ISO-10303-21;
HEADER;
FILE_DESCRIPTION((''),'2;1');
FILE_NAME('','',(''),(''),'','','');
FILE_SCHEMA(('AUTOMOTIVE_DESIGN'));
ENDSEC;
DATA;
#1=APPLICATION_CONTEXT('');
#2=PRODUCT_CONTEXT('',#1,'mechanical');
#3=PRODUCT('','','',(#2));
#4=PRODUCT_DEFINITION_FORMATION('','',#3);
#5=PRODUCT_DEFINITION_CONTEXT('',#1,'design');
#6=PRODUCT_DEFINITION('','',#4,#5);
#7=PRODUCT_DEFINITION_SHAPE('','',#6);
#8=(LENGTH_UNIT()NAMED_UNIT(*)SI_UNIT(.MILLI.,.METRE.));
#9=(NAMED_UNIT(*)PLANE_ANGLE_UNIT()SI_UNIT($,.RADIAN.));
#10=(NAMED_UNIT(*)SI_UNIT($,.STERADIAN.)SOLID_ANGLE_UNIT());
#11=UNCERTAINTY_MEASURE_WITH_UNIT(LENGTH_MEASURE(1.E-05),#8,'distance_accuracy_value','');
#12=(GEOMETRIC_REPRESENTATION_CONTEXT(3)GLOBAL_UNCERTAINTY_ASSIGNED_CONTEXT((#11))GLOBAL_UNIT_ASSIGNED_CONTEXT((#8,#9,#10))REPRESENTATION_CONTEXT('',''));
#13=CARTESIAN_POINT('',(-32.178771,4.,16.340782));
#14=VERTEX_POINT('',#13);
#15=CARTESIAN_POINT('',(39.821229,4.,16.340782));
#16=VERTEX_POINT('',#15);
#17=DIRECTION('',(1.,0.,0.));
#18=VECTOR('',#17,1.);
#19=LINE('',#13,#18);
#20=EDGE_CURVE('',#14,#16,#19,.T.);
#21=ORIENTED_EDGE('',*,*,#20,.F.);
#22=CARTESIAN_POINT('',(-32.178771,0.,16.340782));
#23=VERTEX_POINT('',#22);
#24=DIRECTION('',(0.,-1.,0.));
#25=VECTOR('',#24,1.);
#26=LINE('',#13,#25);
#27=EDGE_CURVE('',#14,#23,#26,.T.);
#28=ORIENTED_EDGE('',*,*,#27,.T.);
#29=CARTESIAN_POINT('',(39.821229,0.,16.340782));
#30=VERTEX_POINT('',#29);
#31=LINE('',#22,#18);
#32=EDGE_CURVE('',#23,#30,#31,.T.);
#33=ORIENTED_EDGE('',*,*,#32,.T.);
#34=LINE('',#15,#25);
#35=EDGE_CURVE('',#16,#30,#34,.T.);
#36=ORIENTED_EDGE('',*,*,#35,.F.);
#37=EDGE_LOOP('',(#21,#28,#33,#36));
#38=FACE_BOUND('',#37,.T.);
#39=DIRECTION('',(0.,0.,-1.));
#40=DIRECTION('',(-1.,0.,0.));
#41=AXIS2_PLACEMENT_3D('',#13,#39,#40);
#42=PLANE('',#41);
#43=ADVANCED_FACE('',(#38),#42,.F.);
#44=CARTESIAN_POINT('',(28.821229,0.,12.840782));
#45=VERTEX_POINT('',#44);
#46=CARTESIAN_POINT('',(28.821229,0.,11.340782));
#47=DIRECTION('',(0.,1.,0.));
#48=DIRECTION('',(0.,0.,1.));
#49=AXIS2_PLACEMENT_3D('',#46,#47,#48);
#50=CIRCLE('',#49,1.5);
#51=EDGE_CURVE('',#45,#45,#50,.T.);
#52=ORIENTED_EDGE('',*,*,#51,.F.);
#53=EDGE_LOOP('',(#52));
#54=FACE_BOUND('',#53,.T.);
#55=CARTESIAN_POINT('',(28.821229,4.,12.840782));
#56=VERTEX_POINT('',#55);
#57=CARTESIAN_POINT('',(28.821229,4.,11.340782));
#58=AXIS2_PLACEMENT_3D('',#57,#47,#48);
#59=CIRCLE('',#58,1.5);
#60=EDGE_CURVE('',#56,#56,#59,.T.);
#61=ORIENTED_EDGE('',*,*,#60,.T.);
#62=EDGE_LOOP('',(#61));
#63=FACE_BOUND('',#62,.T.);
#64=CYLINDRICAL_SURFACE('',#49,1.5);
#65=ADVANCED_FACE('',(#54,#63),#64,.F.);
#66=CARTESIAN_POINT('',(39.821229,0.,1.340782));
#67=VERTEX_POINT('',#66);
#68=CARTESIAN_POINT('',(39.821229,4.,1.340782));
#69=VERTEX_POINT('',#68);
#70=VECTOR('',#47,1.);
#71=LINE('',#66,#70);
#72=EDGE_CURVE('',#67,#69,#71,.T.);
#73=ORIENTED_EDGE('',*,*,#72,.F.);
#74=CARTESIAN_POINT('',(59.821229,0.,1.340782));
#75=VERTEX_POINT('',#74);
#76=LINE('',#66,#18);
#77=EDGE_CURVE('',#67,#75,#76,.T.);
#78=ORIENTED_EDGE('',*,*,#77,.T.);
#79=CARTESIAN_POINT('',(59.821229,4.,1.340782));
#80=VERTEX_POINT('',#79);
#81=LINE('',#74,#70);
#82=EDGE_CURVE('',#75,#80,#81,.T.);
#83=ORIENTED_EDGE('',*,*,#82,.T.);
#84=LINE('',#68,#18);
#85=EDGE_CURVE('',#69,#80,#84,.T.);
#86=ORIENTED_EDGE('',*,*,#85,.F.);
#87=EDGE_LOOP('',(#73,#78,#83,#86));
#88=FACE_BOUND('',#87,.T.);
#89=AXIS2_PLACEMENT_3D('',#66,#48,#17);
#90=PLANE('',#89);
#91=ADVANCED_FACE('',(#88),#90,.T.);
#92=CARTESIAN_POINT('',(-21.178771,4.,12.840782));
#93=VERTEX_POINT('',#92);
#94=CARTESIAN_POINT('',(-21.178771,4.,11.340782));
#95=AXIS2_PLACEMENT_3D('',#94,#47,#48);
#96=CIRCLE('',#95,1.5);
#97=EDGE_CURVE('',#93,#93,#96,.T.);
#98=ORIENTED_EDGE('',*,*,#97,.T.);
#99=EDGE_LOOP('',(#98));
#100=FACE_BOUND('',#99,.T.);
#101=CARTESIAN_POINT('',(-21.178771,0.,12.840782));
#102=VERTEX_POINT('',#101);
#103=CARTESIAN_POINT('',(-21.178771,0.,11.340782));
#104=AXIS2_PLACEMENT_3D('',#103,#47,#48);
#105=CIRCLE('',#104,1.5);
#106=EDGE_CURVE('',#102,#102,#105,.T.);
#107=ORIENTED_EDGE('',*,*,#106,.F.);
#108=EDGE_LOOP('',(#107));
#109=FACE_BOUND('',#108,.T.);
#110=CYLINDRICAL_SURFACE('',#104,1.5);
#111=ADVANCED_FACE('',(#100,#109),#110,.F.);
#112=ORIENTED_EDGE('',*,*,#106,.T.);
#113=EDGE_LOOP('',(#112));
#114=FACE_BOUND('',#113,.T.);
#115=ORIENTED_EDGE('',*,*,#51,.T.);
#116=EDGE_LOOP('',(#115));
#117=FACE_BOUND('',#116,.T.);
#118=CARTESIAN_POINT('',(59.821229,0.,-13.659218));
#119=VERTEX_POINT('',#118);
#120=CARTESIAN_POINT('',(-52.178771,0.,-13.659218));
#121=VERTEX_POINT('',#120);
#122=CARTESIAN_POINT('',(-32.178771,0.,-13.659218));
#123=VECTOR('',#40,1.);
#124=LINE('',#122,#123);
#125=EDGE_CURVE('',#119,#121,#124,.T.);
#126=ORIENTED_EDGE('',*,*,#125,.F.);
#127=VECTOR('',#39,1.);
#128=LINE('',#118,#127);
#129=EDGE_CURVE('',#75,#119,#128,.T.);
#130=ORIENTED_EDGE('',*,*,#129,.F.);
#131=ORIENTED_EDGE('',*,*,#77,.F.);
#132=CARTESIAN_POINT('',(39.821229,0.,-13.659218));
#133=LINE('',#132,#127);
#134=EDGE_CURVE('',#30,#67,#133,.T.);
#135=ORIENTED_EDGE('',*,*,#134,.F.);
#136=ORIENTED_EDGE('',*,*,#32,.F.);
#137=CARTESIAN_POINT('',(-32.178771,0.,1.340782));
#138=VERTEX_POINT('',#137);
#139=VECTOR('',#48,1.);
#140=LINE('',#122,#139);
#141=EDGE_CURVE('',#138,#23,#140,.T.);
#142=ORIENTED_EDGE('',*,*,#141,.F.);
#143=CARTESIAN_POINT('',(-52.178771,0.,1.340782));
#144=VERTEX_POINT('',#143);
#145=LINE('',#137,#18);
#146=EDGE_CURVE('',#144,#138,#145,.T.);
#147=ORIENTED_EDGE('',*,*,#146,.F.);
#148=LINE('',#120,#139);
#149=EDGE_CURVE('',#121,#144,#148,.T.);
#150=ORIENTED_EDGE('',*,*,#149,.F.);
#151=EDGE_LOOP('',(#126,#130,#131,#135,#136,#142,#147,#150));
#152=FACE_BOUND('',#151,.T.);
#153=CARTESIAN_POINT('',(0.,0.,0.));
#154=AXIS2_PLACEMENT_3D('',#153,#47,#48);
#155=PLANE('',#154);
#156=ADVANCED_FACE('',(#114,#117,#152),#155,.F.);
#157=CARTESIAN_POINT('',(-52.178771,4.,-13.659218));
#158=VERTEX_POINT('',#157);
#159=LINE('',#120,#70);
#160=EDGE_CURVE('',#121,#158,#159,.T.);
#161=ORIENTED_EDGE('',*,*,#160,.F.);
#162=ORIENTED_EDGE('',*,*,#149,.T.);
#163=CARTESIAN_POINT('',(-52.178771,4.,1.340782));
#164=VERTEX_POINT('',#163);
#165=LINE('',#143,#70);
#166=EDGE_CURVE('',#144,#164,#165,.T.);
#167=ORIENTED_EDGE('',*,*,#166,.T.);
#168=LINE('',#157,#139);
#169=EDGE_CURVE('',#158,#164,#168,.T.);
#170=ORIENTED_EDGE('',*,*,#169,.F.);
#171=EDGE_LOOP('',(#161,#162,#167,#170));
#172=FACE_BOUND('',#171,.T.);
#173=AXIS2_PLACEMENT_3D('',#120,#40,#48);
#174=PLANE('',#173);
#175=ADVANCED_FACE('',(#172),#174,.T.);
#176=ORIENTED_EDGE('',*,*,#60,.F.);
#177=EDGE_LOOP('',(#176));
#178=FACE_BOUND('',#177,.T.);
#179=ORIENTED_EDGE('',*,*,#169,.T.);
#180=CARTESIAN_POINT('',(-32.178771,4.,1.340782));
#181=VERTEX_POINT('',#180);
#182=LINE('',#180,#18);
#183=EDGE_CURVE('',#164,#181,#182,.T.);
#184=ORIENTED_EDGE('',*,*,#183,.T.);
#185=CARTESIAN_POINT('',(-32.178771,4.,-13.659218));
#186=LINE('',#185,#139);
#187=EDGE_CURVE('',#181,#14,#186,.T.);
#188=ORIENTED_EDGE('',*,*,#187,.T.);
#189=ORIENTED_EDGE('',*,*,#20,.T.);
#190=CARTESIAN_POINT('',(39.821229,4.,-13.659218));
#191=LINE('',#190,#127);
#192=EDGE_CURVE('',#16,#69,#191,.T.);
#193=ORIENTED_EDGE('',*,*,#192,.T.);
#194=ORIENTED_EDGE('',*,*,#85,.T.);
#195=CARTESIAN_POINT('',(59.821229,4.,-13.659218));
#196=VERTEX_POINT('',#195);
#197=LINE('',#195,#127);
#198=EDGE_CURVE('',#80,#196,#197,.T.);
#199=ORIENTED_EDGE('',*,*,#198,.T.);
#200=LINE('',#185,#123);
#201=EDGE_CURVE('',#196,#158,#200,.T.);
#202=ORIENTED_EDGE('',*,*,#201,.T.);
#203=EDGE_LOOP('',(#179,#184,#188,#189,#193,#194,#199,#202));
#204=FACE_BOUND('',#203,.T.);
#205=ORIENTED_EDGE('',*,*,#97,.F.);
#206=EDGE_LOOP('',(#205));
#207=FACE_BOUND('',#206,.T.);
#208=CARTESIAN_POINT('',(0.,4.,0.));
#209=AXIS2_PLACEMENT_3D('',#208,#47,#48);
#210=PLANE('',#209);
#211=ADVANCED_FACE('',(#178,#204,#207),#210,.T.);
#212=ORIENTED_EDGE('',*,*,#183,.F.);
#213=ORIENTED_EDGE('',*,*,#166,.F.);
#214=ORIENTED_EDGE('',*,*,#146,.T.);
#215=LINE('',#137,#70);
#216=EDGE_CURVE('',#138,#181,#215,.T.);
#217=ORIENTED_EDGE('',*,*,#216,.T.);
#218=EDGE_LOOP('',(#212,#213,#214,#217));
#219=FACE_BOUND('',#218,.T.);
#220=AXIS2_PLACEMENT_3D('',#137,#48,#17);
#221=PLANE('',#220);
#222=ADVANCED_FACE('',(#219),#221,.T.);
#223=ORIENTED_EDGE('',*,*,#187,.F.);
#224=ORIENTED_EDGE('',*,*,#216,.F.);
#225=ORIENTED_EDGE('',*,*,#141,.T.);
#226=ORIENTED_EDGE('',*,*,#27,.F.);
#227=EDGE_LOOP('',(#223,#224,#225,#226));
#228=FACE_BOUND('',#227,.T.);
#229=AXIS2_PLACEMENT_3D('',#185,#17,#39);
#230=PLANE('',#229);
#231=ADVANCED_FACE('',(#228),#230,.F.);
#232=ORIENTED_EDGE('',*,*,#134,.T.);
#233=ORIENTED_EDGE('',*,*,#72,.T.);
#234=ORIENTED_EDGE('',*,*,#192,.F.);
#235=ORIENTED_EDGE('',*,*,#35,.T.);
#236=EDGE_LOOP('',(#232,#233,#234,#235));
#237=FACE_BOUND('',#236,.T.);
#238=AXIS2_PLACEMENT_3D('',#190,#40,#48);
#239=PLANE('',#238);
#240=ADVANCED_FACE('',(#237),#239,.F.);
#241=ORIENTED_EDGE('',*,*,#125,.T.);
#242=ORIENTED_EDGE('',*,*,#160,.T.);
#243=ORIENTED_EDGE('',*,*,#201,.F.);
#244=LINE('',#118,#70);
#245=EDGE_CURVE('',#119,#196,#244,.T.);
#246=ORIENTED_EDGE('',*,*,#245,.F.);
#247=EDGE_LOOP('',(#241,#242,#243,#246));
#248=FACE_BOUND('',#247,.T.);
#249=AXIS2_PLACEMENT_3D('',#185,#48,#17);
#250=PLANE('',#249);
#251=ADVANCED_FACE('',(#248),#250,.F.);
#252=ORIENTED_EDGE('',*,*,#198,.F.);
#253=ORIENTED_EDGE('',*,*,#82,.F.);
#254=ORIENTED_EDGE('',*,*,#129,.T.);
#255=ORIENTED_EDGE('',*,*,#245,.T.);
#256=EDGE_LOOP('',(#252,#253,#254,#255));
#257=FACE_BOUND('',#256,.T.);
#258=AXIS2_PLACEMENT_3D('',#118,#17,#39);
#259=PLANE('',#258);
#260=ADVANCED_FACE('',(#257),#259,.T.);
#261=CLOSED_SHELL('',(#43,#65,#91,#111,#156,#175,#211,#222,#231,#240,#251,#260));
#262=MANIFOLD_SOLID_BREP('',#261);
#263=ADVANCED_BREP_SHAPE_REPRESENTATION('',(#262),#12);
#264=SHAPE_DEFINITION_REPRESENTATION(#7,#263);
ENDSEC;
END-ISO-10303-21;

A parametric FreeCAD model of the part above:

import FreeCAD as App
import Part
import Sketcher

V = App.Vector

doc = App.newDocument("Part")
body = doc.addObject("PartDesign::Body", "Body")

sketch1 = body.newObject("Sketcher::SketchObject", "Sketch")
sketch1.AttachmentSupport = (doc.getObject("XZ_Plane"), [""])
sketch1.MapMode = "FlatFace"
sketch1.addGeometry(Part.LineSegment(V(-32, -14, 0), V(-32, 16, 0)), False)
sketch1.addGeometry(Part.LineSegment(V(-32, 16, 0), V(40, 16, 0)), False)
sketch1.addGeometry(Part.LineSegment(V(40, 16, 0), V(40, -14, 0)), False)
sketch1.addGeometry(Part.LineSegment(V(40, -14, 0), V(-32, -14, 0)), False)
sketch1.addConstraint(Sketcher.Constraint("Coincident", 0, 2, 1, 1))
sketch1.addConstraint(Sketcher.Constraint("Coincident", 1, 2, 2, 1))
sketch1.addConstraint(Sketcher.Constraint("Coincident", 2, 2, 3, 1))
sketch1.addConstraint(Sketcher.Constraint("Coincident", 3, 2, 0, 1))
sketch1.addConstraint(Sketcher.Constraint("Vertical", 0))
sketch1.addConstraint(Sketcher.Constraint("Horizontal", 1))
sketch1.addConstraint(Sketcher.Constraint("Vertical", 2))
sketch1.addConstraint(Sketcher.Constraint("Horizontal", 3))
sketch1.addConstraint(Sketcher.Constraint("DistanceX", 1, 1, 1, 2, 72.0))
sketch1.addConstraint(Sketcher.Constraint("DistanceY", 0, 1, 0, 2, 30.0))
sketch1.addConstraint(Sketcher.Constraint("DistanceX", 0, 2, -1, 1, 32.178771))
sketch1.addConstraint(Sketcher.Constraint("DistanceY", -1, 1, 0, 2, 16.340782))
pad1 = body.newObject("PartDesign::Pad", "Pad")
pad1.Profile = sketch1
pad1.Length = 4
pad1.Reversed = True

sketch2 = body.newObject("Sketcher::SketchObject", "Sketch001")
sketch2.AttachmentSupport = (doc.getObject("XZ_Plane"), [""])
sketch2.MapMode = "FlatFace"
sketch2.AttachmentOffset = App.Placement(V(0, 0, -4), App.Rotation())
sketch2.addGeometry(Part.Circle(V(-21.2, 11.3, 0), V(0, 0, 1), 1.5), False)
sketch2.addGeometry(Part.Circle(V(28.8, 11.3, 0), V(0, 0, 1), 1.5), False)
sketch2.addConstraint(Sketcher.Constraint("Equal", 0, 1))
sketch2.addConstraint(Sketcher.Constraint("Horizontal", 0, 3, 1, 3))
sketch2.addConstraint(Sketcher.Constraint("Diameter", 0, 3.0))
sketch2.addConstraint(Sketcher.Constraint("DistanceX", 0, 3, 1, 3, 50.0))
sketch2.addConstraint(Sketcher.Constraint("DistanceX", 0, 3, -1, 1, 21.178771))
sketch2.addConstraint(Sketcher.Constraint("DistanceY", -1, 1, 0, 3, 11.340782))
pocket1 = body.newObject("PartDesign::Pocket", "Pocket")
pocket1.Profile = sketch2
pocket1.Length = 4
pocket1.Reversed = True

sketch3 = body.newObject("Sketcher::SketchObject", "Sketch002")
sketch3.AttachmentSupport = (doc.getObject("XZ_Plane"), [""])
sketch3.MapMode = "FlatFace"
sketch3.AttachmentOffset = App.Placement(V(0, 0, -4), App.Rotation())
sketch3.addGeometry(Part.LineSegment(V(40, -14, 0), V(40, 1, 0)), False)
sketch3.addGeometry(Part.LineSegment(V(40, 1, 0), V(60, 1, 0)), False)
sketch3.addGeometry(Part.LineSegment(V(60, 1, 0), V(60, -14, 0)), False)
sketch3.addGeometry(Part.LineSegment(V(60, -14, 0), V(40, -14, 0)), False)
sketch3.addGeometry(Part.LineSegment(V(-52, -14, 0), V(-52, 1, 0)), False)
sketch3.addGeometry(Part.LineSegment(V(-52, 1, 0), V(-32, 1, 0)), False)
sketch3.addGeometry(Part.LineSegment(V(-32, 1, 0), V(-32, -14, 0)), False)
sketch3.addGeometry(Part.LineSegment(V(-32, -14, 0), V(-52, -14, 0)), False)
sketch3.addConstraint(Sketcher.Constraint("Coincident", 0, 2, 1, 1))
sketch3.addConstraint(Sketcher.Constraint("Coincident", 1, 2, 2, 1))
sketch3.addConstraint(Sketcher.Constraint("Coincident", 2, 2, 3, 1))
sketch3.addConstraint(Sketcher.Constraint("Coincident", 3, 2, 0, 1))
sketch3.addConstraint(Sketcher.Constraint("Coincident", 4, 2, 5, 1))
sketch3.addConstraint(Sketcher.Constraint("Coincident", 5, 2, 6, 1))
sketch3.addConstraint(Sketcher.Constraint("Coincident", 6, 2, 7, 1))
sketch3.addConstraint(Sketcher.Constraint("Coincident", 7, 2, 4, 1))
sketch3.addConstraint(Sketcher.Constraint("Vertical", 0))
sketch3.addConstraint(Sketcher.Constraint("Horizontal", 1))
sketch3.addConstraint(Sketcher.Constraint("Vertical", 2))
sketch3.addConstraint(Sketcher.Constraint("Horizontal", 3))
sketch3.addConstraint(Sketcher.Constraint("Vertical", 4))
sketch3.addConstraint(Sketcher.Constraint("Horizontal", 5))
sketch3.addConstraint(Sketcher.Constraint("Vertical", 6))
sketch3.addConstraint(Sketcher.Constraint("Horizontal", 7))
sketch3.addConstraint(Sketcher.Constraint("Horizontal", 1, 2, 4, 2))
sketch3.addConstraint(Sketcher.Constraint("Horizontal", 3, 2, 6, 2))
sketch3.addConstraint(Sketcher.Constraint("Equal", 3, 5))
sketch3.addConstraint(Sketcher.Constraint("DistanceX", 1, 1, 1, 2, 20.0))
sketch3.addConstraint(Sketcher.Constraint("DistanceY", 0, 1, 0, 2, 15.0))
sketch3.addConstraint(Sketcher.Constraint("DistanceX", 4, 2, 0, 2, 92.0))
sketch3.addConstraint(Sketcher.Constraint("DistanceX", -1, 1, 0, 2, 39.821229))
sketch3.addConstraint(Sketcher.Constraint("DistanceY", -1, 1, 0, 2, 1.340782))
pad2 = body.newObject("PartDesign::Pad", "Pad001")
pad2.Profile = sketch3
pad2.Length = 4

doc.recompute()
